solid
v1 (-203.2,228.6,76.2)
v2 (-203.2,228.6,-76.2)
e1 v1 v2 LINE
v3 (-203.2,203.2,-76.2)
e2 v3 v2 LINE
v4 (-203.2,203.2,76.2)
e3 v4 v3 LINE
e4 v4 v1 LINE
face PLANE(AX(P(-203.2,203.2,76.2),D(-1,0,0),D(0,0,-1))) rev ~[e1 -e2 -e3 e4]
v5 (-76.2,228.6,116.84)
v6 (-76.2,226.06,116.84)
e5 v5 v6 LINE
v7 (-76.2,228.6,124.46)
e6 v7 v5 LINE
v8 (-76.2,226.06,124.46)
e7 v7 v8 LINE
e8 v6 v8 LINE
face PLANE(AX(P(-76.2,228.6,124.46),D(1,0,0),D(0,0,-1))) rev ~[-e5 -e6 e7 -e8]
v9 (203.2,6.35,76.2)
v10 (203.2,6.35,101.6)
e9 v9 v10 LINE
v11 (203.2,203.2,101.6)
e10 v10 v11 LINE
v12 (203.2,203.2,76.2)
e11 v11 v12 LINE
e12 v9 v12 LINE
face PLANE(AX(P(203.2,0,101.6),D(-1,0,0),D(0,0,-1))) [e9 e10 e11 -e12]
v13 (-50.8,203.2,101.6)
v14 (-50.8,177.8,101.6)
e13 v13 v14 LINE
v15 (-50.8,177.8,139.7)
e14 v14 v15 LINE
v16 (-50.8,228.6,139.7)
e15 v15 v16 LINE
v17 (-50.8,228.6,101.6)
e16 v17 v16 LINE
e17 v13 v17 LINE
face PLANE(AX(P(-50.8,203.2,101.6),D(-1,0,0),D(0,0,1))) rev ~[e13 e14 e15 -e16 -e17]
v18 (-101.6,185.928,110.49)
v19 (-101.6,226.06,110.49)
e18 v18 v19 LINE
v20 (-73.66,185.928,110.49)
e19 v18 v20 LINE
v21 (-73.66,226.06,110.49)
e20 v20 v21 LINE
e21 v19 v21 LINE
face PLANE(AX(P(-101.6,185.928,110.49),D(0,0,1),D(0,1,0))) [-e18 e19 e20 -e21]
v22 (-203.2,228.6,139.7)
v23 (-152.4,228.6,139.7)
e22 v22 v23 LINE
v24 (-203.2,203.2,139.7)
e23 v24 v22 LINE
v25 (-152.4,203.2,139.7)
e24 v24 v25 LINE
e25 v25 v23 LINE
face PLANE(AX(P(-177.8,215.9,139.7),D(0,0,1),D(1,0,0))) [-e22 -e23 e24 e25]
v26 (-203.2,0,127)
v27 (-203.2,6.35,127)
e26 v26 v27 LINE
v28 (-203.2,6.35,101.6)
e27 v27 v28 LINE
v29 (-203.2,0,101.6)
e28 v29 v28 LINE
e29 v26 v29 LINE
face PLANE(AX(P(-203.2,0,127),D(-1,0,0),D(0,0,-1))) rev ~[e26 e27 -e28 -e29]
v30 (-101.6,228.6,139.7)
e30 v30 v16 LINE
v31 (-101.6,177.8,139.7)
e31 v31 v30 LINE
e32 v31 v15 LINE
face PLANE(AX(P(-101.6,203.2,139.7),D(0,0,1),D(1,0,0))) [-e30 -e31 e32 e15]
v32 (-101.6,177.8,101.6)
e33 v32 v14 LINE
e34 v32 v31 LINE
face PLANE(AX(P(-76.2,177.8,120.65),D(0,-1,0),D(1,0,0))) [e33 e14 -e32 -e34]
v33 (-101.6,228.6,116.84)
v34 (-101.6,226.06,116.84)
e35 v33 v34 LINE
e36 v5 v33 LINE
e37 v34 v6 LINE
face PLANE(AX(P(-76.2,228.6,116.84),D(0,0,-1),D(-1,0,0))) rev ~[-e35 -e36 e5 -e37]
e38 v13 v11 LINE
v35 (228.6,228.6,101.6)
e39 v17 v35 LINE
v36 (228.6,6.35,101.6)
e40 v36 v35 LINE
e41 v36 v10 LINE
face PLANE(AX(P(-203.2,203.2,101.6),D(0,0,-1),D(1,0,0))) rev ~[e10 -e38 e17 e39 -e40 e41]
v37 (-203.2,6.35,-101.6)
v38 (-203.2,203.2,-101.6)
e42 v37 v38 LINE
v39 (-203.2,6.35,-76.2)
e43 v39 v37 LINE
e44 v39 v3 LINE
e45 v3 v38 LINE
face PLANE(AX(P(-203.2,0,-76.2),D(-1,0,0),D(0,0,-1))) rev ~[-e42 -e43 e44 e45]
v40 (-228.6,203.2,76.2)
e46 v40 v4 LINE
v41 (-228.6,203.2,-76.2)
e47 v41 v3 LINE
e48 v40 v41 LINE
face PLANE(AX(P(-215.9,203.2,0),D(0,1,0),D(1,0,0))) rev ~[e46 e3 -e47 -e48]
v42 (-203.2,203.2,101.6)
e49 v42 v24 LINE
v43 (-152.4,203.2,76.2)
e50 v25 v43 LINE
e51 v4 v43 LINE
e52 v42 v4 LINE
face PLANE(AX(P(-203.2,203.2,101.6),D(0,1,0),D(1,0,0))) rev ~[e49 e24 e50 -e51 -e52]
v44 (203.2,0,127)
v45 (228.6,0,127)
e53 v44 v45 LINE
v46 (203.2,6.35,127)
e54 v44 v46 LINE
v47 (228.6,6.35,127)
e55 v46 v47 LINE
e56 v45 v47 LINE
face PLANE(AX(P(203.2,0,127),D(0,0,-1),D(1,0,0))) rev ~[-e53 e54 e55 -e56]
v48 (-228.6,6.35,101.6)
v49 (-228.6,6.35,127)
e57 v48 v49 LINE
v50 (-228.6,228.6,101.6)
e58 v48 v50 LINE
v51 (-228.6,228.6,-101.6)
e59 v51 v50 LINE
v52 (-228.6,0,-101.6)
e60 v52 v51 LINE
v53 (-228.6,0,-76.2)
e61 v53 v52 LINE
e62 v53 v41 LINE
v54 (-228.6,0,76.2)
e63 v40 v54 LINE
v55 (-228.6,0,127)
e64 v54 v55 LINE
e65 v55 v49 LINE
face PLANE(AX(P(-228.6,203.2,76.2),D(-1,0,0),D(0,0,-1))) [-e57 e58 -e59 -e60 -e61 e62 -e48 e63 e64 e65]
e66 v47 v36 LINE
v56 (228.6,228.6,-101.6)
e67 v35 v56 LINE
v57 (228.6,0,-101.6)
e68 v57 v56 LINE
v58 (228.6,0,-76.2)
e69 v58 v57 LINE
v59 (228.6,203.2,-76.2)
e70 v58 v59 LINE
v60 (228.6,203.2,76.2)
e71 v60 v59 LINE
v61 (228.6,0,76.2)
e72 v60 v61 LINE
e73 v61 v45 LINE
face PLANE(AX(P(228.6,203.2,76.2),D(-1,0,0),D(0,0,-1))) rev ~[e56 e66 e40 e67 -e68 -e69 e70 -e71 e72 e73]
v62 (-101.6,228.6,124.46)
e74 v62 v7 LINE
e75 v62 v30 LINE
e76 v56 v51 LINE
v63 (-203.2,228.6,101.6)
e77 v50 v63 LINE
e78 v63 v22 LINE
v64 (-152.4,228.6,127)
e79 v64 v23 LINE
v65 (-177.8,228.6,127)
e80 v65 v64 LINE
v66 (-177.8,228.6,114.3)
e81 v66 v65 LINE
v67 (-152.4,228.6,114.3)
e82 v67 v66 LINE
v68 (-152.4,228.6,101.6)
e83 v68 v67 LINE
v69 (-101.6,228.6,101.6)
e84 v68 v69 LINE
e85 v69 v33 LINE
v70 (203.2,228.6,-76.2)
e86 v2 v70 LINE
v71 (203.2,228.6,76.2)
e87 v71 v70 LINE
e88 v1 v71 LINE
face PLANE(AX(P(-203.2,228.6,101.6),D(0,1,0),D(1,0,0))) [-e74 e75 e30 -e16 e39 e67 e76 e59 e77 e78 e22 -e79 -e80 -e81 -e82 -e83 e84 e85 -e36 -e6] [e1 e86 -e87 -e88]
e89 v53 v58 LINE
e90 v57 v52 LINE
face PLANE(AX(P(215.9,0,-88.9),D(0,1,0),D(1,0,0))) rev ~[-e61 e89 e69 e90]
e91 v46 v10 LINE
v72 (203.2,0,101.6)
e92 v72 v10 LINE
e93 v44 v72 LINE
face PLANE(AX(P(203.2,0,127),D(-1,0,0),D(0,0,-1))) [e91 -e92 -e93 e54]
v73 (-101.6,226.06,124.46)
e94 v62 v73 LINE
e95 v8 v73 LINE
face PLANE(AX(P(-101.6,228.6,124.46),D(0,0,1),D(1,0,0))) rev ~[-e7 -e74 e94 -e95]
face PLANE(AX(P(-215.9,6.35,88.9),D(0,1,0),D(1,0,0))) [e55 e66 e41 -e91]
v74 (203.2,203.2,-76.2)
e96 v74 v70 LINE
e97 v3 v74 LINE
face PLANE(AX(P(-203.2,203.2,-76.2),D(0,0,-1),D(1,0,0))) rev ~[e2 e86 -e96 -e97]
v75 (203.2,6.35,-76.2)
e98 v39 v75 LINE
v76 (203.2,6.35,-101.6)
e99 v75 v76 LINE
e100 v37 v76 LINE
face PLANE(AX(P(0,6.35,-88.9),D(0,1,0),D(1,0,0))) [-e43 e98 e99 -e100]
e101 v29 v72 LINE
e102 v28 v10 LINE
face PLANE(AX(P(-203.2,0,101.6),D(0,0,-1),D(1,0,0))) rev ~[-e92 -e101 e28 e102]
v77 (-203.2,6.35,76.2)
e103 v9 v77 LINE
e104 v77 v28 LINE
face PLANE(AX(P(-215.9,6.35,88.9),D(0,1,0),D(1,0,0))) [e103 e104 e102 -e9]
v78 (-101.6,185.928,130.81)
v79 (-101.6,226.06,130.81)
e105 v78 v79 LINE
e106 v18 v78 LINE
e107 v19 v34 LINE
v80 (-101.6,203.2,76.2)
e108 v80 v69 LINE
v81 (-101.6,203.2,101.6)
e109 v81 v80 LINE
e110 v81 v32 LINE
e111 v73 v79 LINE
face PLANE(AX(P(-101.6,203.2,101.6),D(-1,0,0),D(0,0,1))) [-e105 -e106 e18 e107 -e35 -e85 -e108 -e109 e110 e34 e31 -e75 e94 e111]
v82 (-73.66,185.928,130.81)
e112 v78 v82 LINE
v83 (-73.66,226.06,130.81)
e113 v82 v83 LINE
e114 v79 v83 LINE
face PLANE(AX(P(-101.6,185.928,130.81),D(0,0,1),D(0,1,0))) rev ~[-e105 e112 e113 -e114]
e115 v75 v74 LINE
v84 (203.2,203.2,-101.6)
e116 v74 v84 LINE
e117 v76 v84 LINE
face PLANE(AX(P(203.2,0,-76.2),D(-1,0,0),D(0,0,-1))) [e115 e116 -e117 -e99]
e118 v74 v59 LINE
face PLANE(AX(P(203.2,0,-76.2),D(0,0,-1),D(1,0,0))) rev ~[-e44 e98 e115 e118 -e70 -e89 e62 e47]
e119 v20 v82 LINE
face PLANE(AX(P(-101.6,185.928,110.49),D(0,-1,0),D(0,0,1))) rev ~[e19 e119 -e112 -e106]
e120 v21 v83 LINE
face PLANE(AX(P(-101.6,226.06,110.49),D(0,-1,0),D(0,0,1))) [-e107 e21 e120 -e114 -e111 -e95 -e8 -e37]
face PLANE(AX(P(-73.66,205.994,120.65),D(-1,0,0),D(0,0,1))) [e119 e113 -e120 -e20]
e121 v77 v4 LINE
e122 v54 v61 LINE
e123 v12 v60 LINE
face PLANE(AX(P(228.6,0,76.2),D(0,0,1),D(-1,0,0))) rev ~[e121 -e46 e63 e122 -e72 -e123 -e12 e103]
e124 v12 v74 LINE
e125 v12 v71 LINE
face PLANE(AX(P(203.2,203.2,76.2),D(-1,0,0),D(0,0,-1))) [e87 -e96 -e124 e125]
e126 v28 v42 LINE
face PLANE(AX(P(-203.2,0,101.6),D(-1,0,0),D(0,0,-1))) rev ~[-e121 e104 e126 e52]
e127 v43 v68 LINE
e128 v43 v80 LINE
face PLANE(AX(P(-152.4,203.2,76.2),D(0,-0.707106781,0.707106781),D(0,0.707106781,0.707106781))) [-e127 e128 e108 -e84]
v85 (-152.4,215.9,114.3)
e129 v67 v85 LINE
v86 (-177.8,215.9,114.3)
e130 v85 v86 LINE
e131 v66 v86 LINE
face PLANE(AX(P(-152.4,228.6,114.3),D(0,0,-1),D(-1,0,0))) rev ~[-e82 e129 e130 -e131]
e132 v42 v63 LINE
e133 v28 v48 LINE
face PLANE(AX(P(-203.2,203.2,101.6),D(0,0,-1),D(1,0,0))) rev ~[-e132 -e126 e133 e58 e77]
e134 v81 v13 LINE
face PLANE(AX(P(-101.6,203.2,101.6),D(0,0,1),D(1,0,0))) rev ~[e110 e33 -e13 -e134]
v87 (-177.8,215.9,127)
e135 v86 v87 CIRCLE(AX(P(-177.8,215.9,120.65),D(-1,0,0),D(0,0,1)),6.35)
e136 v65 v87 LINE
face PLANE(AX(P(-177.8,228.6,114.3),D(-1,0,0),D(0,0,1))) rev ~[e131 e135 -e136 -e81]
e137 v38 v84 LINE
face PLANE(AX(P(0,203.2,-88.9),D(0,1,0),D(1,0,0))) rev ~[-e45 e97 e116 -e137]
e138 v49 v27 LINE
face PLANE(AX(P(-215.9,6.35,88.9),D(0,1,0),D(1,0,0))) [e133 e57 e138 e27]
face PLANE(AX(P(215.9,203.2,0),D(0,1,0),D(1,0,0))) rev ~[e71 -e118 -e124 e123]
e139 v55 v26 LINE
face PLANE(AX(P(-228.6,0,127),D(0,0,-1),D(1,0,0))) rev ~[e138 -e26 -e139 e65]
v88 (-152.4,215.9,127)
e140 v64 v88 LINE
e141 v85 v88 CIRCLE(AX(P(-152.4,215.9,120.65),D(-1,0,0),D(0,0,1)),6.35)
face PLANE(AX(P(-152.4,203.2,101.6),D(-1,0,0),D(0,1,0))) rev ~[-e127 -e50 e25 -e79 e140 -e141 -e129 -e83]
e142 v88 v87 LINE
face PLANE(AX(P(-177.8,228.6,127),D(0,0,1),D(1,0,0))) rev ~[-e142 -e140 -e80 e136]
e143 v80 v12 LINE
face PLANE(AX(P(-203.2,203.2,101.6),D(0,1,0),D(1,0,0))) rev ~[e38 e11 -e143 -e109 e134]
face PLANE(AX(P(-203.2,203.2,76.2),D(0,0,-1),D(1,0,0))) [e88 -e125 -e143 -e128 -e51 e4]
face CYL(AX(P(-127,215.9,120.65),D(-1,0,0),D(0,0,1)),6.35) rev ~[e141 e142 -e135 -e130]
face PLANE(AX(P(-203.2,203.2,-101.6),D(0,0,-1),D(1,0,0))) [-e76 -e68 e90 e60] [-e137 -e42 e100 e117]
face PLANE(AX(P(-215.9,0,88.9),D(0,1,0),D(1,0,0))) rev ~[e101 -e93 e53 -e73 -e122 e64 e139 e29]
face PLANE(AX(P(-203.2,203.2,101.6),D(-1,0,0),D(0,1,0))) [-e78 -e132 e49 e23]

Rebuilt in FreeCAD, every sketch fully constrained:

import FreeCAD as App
import Part
import Sketcher
Q = App.Units.Quantity

doc = App.newDocument("Part")
params = doc.addObject("Spreadsheet::Sheet", "Params")
for row, (alias, value) in enumerate([
    ("sketch1_width", "1 in"),
    ("sketch1_width2", "16 in"),
    ("sketch1_height", "2 in"),
    ("pad1_length", "0.25 in"),
    ("sketch2_width", "1 in"),
    ("pad2_length", "9 in"),
    ("sketch3_width", "16 in"),
    ("sketch3_width2", "1 in"),
    ("sketch3_height", "6 in"),
    ("pad3_length", "1 in"),
    ("sketch4_width", "2 in"),
    ("sketch4_height", "1 in"),
    ("pad4_length", "1.5 in"),
    ("sketch5_diameter", "0.5 in"),
    ("hole_diameter", "0.5 in"),
    ("hole_depth", "1 in"),
    ("sketch6_width", "2 in"),
    ("sketch6_height", "1.5 in"),
    ("pad5_length", "1 in"),
    ("sketch7_height", "0.8 in"),
    ("sketch7_width", "1.58 in"),
    ("pocket1_length", "1.1 in"),
    ("sketch8_width", "1 in"),
    ("sketch8_height", "0.5 in"),
    ("pocket2_length", "0.5 in"),
    ("sketch9_width", "1 in"),
    ("sketch9_height", "0.3 in"),
    ("pocket3_length", "0.5 in"),
    ("sketch10_width", "1 in"),
    ("pocket4_length", "2 in"),
], start=1):
    params.set(f"A{row}", alias)
    params.set(f"B{row}", "=" + value)
    params.setAlias(f"B{row}", alias)

body = doc.addObject("PartDesign::Body", "Body")
body.AllowCompound = True

# Sketch on XZ plane
sketch1 = doc.addObject("Sketcher::SketchObject", "Sketch")
body.addObject(sketch1)
sketch1.AttachmentSupport = (doc.XZ_Plane, [""])
sketch1.MapMode = "FlatFace"
sketch1.addGeometry(Part.LineSegment(App.Vector(-229, 76, 0), App.Vector(-229, 127, 0)), False)
sketch1.addGeometry(Part.LineSegment(App.Vector(-229, 127, 0), App.Vector(-203, 127, 0)), False)
sketch1.addGeometry(Part.LineSegment(App.Vector(-203, 127, 0), App.Vector(-203, 102, 0)), False)
sketch1.addGeometry(Part.LineSegment(App.Vector(-203, 102, 0), App.Vector(203, 102, 0)), False)
sketch1.addGeometry(Part.LineSegment(App.Vector(203, 102, 0), App.Vector(203, 127, 0)), False)
sketch1.addGeometry(Part.LineSegment(App.Vector(203, 127, 0), App.Vector(229, 127, 0)), False)
sketch1.addGeometry(Part.LineSegment(App.Vector(229, 127, 0), App.Vector(229, 76, 0)), False)
sketch1.addGeometry(Part.LineSegment(App.Vector(229, 76, 0), App.Vector(-229, 76, 0)), False)
sketch1.addGeometry(Part.LineSegment(App.Vector(-203, -102, 0), App.Vector(-203, -76, 0)), False)
sketch1.addGeometry(Part.LineSegment(App.Vector(-203, -76, 0), App.Vector(203, -76, 0)), False)
sketch1.addGeometry(Part.LineSegment(App.Vector(203, -76, 0), App.Vector(203, -102, 0)), False)
sketch1.addGeometry(Part.LineSegment(App.Vector(203, -102, 0), App.Vector(-203, -102, 0)), False)
sketch1.addConstraint(Sketcher.Constraint("Coincident", 0, 2, 1, 1))
sketch1.addConstraint(Sketcher.Constraint("Coincident", 1, 2, 2, 1))
sketch1.addConstraint(Sketcher.Constraint("Coincident", 2, 2, 3, 1))
sketch1.addConstraint(Sketcher.Constraint("Coincident", 3, 2, 4, 1))
sketch1.addConstraint(Sketcher.Constraint("Coincident", 4, 2, 5, 1))
sketch1.addConstraint(Sketcher.Constraint("Coincident", 5, 2, 6, 1))
sketch1.addConstraint(Sketcher.Constraint("Coincident", 6, 2, 7, 1))
sketch1.addConstraint(Sketcher.Constraint("Coincident", 7, 2, 0, 1))
sketch1.addConstraint(Sketcher.Constraint("Coincident", 8, 2, 9, 1))
sketch1.addConstraint(Sketcher.Constraint("Coincident", 9, 2, 10, 1))
sketch1.addConstraint(Sketcher.Constraint("Coincident", 10, 2, 11, 1))
sketch1.addConstraint(Sketcher.Constraint("Coincident", 11, 2, 8, 1))
sketch1.addConstraint(Sketcher.Constraint("Vertical", 0))
sketch1.addConstraint(Sketcher.Constraint("Horizontal", 1))
sketch1.addConstraint(Sketcher.Constraint("Vertical", 2))
sketch1.addConstraint(Sketcher.Constraint("Horizontal", 3))
sketch1.addConstraint(Sketcher.Constraint("Vertical", 4))
sketch1.addConstraint(Sketcher.Constraint("Horizontal", 5))
sketch1.addConstraint(Sketcher.Constraint("Vertical", 6))
sketch1.addConstraint(Sketcher.Constraint("Horizontal", 7))
sketch1.addConstraint(Sketcher.Constraint("Vertical", 8))
sketch1.addConstraint(Sketcher.Constraint("Horizontal", 9))
sketch1.addConstraint(Sketcher.Constraint("Vertical", 10))
sketch1.addConstraint(Sketcher.Constraint("Horizontal", 11))
sketch1.addConstraint(Sketcher.Constraint("Symmetric", 2, 2, 10, 2, -1, 1))
sketch1.addConstraint(Sketcher.Constraint("Symmetric", 1, 2, 4, 2, -2))
sketch1.addConstraint(Sketcher.Constraint("Vertical", 2, 2, 8, 2))
sketch1.addConstraint(Sketcher.Constraint("Equal", 1, 5))
sketch1.addConstraint(Sketcher.Constraint("Equal", 5, 2))
sketch1.addConstraint(Sketcher.Constraint("Equal", 4, 8))
sketch1.addConstraint(Sketcher.Constraint("DistanceX", 1, 1, 1, 2, Q("1 in")))
sketch1.addConstraint(Sketcher.Constraint("DistanceX", 3, 1, 3, 2, Q("16 in")))
sketch1.addConstraint(Sketcher.Constraint("DistanceY", 0, 1, 0, 2, Q("2 in")))
sketch1.addConstraint(Sketcher.Constraint("DistanceY", -1, 1, 0, 2, Q("5 in")))
sketch1.setExpression("Constraints[30]", "Params.sketch1_width")
sketch1.setExpression("Constraints[31]", "Params.sketch1_width2")
sketch1.setExpression("Constraints[32]", "Params.sketch1_height")
pad1 = doc.addObject("PartDesign::Pad", "Pad")
body.addObject(pad1)
pad1.Profile = sketch1
pad1.setExpression("Length", "Params.pad1_length")
pad1.Reversed = True

# Sketch on XZ plane
sketch2 = doc.addObject("Sketcher::SketchObject", "Sketch001")
body.addObject(sketch2)
sketch2.AttachmentSupport = (doc.XZ_Plane, [""])
sketch2.MapMode = "FlatFace"
sketch2.addGeometry(Part.LineSegment(App.Vector(-229, 76, 0), App.Vector(-229, 102, 0)), False)
sketch2.addGeometry(Part.LineSegment(App.Vector(-229, 102, 0), App.Vector(-203, 102, 0)), False)
sketch2.addGeometry(Part.LineSegment(App.Vector(-203, 102, 0), App.Vector(-203, 76, 0)), False)
sketch2.addGeometry(Part.LineSegment(App.Vector(-203, 76, 0), App.Vector(-229, 76, 0)), False)
sketch2.addGeometry(Part.LineSegment(App.Vector(203, 76, 0), App.Vector(203, 102, 0)), False)
sketch2.addGeometry(Part.LineSegment(App.Vector(203, 102, 0), App.Vector(229, 102, 0)), False)
sketch2.addGeometry(Part.LineSegment(App.Vector(229, 102, 0), App.Vector(229, 76, 0)), False)
sketch2.addGeometry(Part.LineSegment(App.Vector(229, 76, 0), App.Vector(203, 76, 0)), False)
sketch2.addGeometry(Part.LineSegment(App.Vector(203, -102, 0), App.Vector(203, -76, 0)), False)
sketch2.addGeometry(Part.LineSegment(App.Vector(203, -76, 0), App.Vector(229, -76, 0)), False)
sketch2.addGeometry(Part.LineSegment(App.Vector(229, -76, 0), App.Vector(229, -102, 0)), False)
sketch2.addGeometry(Part.LineSegment(App.Vector(229, -102, 0), App.Vector(203, -102, 0)), False)
sketch2.addGeometry(Part.LineSegment(App.Vector(-229, -102, 0), App.Vector(-229, -76, 0)), False)
sketch2.addGeometry(Part.LineSegment(App.Vector(-229, -76, 0), App.Vector(-203, -76, 0)), False)
sketch2.addGeometry(Part.LineSegment(App.Vector(-203, -76, 0), App.Vector(-203, -102, 0)), False)
sketch2.addGeometry(Part.LineSegment(App.Vector(-203, -102, 0), App.Vector(-229, -102, 0)), False)
sketch2.addConstraint(Sketcher.Constraint("Coincident", 0, 2, 1, 1))
sketch2.addConstraint(Sketcher.Constraint("Coincident", 1, 2, 2, 1))
sketch2.addConstraint(Sketcher.Constraint("Coincident", 2, 2, 3, 1))
sketch2.addConstraint(Sketcher.Constraint("Coincident", 3, 2, 0, 1))
sketch2.addConstraint(Sketcher.Constraint("Coincident", 4, 2, 5, 1))
sketch2.addConstraint(Sketcher.Constraint("Coincident", 5, 2, 6, 1))
sketch2.addConstraint(Sketcher.Constraint("Coincident", 6, 2, 7, 1))
sketch2.addConstraint(Sketcher.Constraint("Coincident", 7, 2, 4, 1))
sketch2.addConstraint(Sketcher.Constraint("Coincident", 8, 2, 9, 1))
sketch2.addConstraint(Sketcher.Constraint("Coincident", 9, 2, 10, 1))
sketch2.addConstraint(Sketcher.Constraint("Coincident", 10, 2, 11, 1))
sketch2.addConstraint(Sketcher.Constraint("Coincident", 11, 2, 8, 1))
sketch2.addConstraint(Sketcher.Constraint("Coincident", 12, 2, 13, 1))
sketch2.addConstraint(Sketcher.Constraint("Coincident", 13, 2, 14, 1))
sketch2.addConstraint(Sketcher.Constraint("Coincident", 14, 2, 15, 1))
sketch2.addConstraint(Sketcher.Constraint("Coincident", 15, 2, 12, 1))
sketch2.addConstraint(Sketcher.Constraint("Vertical", 0))
sketch2.addConstraint(Sketcher.Constraint("Horizontal", 1))
sketch2.addConstraint(Sketcher.Constraint("Vertical", 2))
sketch2.addConstraint(Sketcher.Constraint("Horizontal", 3))
sketch2.addConstraint(Sketcher.Constraint("Vertical", 4))
sketch2.addConstraint(Sketcher.Constraint("Horizontal", 5))
sketch2.addConstraint(Sketcher.Constraint("Vertical", 6))
sketch2.addConstraint(Sketcher.Constraint("Horizontal", 7))
sketch2.addConstraint(Sketcher.Constraint("Vertical", 8))
sketch2.addConstraint(Sketcher.Constraint("Horizontal", 9))
sketch2.addConstraint(Sketcher.Constraint("Vertical", 10))
sketch2.addConstraint(Sketcher.Constraint("Horizontal", 11))
sketch2.addConstraint(Sketcher.Constraint("Vertical", 12))
sketch2.addConstraint(Sketcher.Constraint("Horizontal", 13))
sketch2.addConstraint(Sketcher.Constraint("Vertical", 14))
sketch2.addConstraint(Sketcher.Constraint("Horizontal", 15))
sketch2.addConstraint(Sketcher.Constraint("Symmetric", 2, 2, 8, 2, -1, 1))
sketch2.addConstraint(Sketcher.Constraint("Symmetric", 0, 2, 10, 2, -1, 1))
sketch2.addConstraint(Sketcher.Constraint("Symmetric", 6, 2, 12, 2, -1, 1))
sketch2.addConstraint(Sketcher.Constraint("Symmetric", 4, 2, 14, 2, -1, 1))
sketch2.addConstraint(Sketcher.Constraint("Symmetric", 1, 2, 4, 2, -2))
sketch2.addConstraint(Sketcher.Constraint("Symmetric", 3, 2, 6, 2, -2))
sketch2.addConstraint(Sketcher.Constraint("Equal", 15, 0))
sketch2.addConstraint(Sketcher.Constraint("DistanceX", 1, 1, 1, 2, Q("1 in")))
sketch2.addConstraint(Sketcher.Constraint("DistanceX", 0, 2, -1, 1, Q("9 in")))
sketch2.addConstraint(Sketcher.Constraint("DistanceY", -1, 1, 0, 2, Q("4 in")))
sketch2.setExpression("Constraints[39]", "Params.sketch2_width")
pad2 = doc.addObject("PartDesign::Pad", "Pad001")
body.addObject(pad2)
pad2.Profile = sketch2
pad2.setExpression("Length", "Params.pad2_length")
pad2.Reversed = True

# Sketch on XZ plane
sketch3 = doc.addObject("Sketcher::SketchObject", "Sketch002")
body.addObject(sketch3)
sketch3.AttachmentSupport = (doc.XZ_Plane, [""])
sketch3.MapMode = "FlatFace"
sketch3.AttachmentOffset = App.Placement(App.Vector(0, 0, -8 * 25.4), App.Rotation())
sketch3.addGeometry(Part.LineSegment(App.Vector(-203, -102, 0), App.Vector(-203, -76, 0)), False)
sketch3.addGeometry(Part.LineSegment(App.Vector(-203, -76, 0), App.Vector(203, -76, 0)), False)
sketch3.addGeometry(Part.LineSegment(App.Vector(203, -76, 0), App.Vector(203, -102, 0)), False)
sketch3.addGeometry(Part.LineSegment(App.Vector(203, -102, 0), App.Vector(-203, -102, 0)), False)
sketch3.addGeometry(Part.LineSegment(App.Vector(-203, 76, 0), App.Vector(-203, 102, 0)), False)
sketch3.addGeometry(Part.LineSegment(App.Vector(-203, 102, 0), App.Vector(203, 102, 0)), False)
sketch3.addGeometry(Part.LineSegment(App.Vector(203, 102, 0), App.Vector(203, 76, 0)), False)
sketch3.addGeometry(Part.LineSegment(App.Vector(203, 76, 0), App.Vector(-203, 76, 0)), False)
sketch3.addGeometry(Part.LineSegment(App.Vector(-229, -76, 0), App.Vector(-229, 76, 0)), False)
sketch3.addGeometry(Part.LineSegment(App.Vector(-229, 76, 0), App.Vector(-203, 76, 0)), False)
sketch3.addGeometry(Part.LineSegment(App.Vector(-203, 76, 0), App.Vector(-203, -76, 0)), False)
sketch3.addGeometry(Part.LineSegment(App.Vector(-203, -76, 0), App.Vector(-229, -76, 0)), False)
sketch3.addGeometry(Part.LineSegment(App.Vector(203, -76, 0), App.Vector(203, 76, 0)), False)
sketch3.addGeometry(Part.LineSegment(App.Vector(203, 76, 0), App.Vector(229, 76, 0)), False)
sketch3.addGeometry(Part.LineSegment(App.Vector(229, 76, 0), App.Vector(229, -76, 0)), False)
sketch3.addGeometry(Part.LineSegment(App.Vector(229, -76, 0), App.Vector(203, -76, 0)), False)
sketch3.addConstraint(Sketcher.Constraint("Coincident", 0, 2, 1, 1))
sketch3.addConstraint(Sketcher.Constraint("Coincident", 1, 2, 2, 1))
sketch3.addConstraint(Sketcher.Constraint("Coincident", 2, 2, 3, 1))
sketch3.addConstraint(Sketcher.Constraint("Coincident", 3, 2, 0, 1))
sketch3.addConstraint(Sketcher.Constraint("Coincident", 4, 2, 5, 1))
sketch3.addConstraint(Sketcher.Constraint("Coincident", 5, 2, 6, 1))
sketch3.addConstraint(Sketcher.Constraint("Coincident", 6, 2, 7, 1))
sketch3.addConstraint(Sketcher.Constraint("Coincident", 7, 2, 4, 1))
sketch3.addConstraint(Sketcher.Constraint("Coincident", 8, 2, 9, 1))
sketch3.addConstraint(Sketcher.Constraint("Coincident", 9, 2, 10, 1))
sketch3.addConstraint(Sketcher.Constraint("Coincident", 10, 2, 11, 1))
sketch3.addConstraint(Sketcher.Constraint("Coincident", 11, 2, 8, 1))
sketch3.addConstraint(Sketcher.Constraint("Coincident", 12, 2, 13, 1))
sketch3.addConstraint(Sketcher.Constraint("Coincident", 13, 2, 14, 1))
sketch3.addConstraint(Sketcher.Constraint("Coincident", 14, 2, 15, 1))
sketch3.addConstraint(Sketcher.Constraint("Coincident", 15, 2, 12, 1))
sketch3.addConstraint(Sketcher.Constraint("Vertical", 0))
sketch3.addConstraint(Sketcher.Constraint("Horizontal", 1))
sketch3.addConstraint(Sketcher.Constraint("Vertical", 2))
sketch3.addConstraint(Sketcher.Constraint("Horizontal", 3))
sketch3.addConstraint(Sketcher.Constraint("Vertical", 4))
sketch3.addConstraint(Sketcher.Constraint("Horizontal", 5))
sketch3.addConstraint(Sketcher.Constraint("Vertical", 6))
sketch3.addConstraint(Sketcher.Constraint("Horizontal", 7))
sketch3.addConstraint(Sketcher.Constraint("Vertical", 8))
sketch3.addConstraint(Sketcher.Constraint("Horizontal", 9))
sketch3.addConstraint(Sketcher.Constraint("Vertical", 10))
sketch3.addConstraint(Sketcher.Constraint("Horizontal", 11))
sketch3.addConstraint(Sketcher.Constraint("Vertical", 12))
sketch3.addConstraint(Sketcher.Constraint("Horizontal", 13))
sketch3.addConstraint(Sketcher.Constraint("Vertical", 14))
sketch3.addConstraint(Sketcher.Constraint("Horizontal", 15))
sketch3.addConstraint(Sketcher.Constraint("Coincident", 9, 2, 7, 2))
sketch3.addConstraint(Sketcher.Constraint("Coincident", 10, 2, 0, 2))
sketch3.addConstraint(Sketcher.Constraint("Coincident", 12, 2, 6, 2))
sketch3.addConstraint(Sketcher.Constraint("Coincident", 15, 2, 1, 2))
sketch3.addConstraint(Sketcher.Constraint("Symmetric", 2, 2, 4, 2, -1, 1))
sketch3.addConstraint(Sketcher.Constraint("Symmetric", 11, 2, 13, 2, -1, 1))
sketch3.addConstraint(Sketcher.Constraint("Equal", 15, 0))
sketch3.addConstraint(Sketcher.Constraint("DistanceX", 1, 1, 1, 2, Q("16 in")))
sketch3.addConstraint(Sketcher.Constraint("DistanceX", 9, 1, 9, 2, Q("1 in")))
sketch3.addConstraint(Sketcher.Constraint("DistanceY", 8, 1, 8, 2, Q("6 in")))
sketch3.setExpression("Constraints[39]", "Params.sketch3_width")
sketch3.setExpression("Constraints[40]", "Params.sketch3_width2")
sketch3.setExpression("Constraints[41]", "Params.sketch3_height")
pad3 = doc.addObject("PartDesign::Pad", "Pad002")
body.addObject(pad3)
pad3.Profile = sketch3
pad3.setExpression("Length", "Params.pad3_length")
pad3.Reversed = True

# Sketch on XY plane
sketch4 = doc.addObject("Sketcher::SketchObject", "Sketch003")
body.addObject(sketch4)
sketch4.AttachmentSupport = (doc.XY_Plane, [""])
sketch4.MapMode = "FlatFace"
sketch4.AttachmentOffset = App.Placement(App.Vector(0, 0, 4 * 25.4), App.Rotation())
sketch4.addGeometry(Part.LineSegment(App.Vector(-203, 229, 0), App.Vector(-203, 203, 0)), False)
sketch4.addGeometry(Part.LineSegment(App.Vector(-203, 203, 0), App.Vector(-152, 203, 0)), False)
sketch4.addGeometry(Part.LineSegment(App.Vector(-152, 203, 0), App.Vector(-152, 229, 0)), False)
sketch4.addGeometry(Part.LineSegment(App.Vector(-152, 229, 0), App.Vector(-203, 229, 0)), False)
sketch4.addGeometry(Part.LineSegment(App.Vector(-102, 229, 0), App.Vector(-102, 203, 0)), False)
sketch4.addGeometry(Part.LineSegment(App.Vector(-102, 203, 0), App.Vector(-51, 203, 0)), False)
sketch4.addGeometry(Part.LineSegment(App.Vector(-51, 203, 0), App.Vector(-51, 229, 0)), False)
sketch4.addGeometry(Part.LineSegment(App.Vector(-51, 229, 0), App.Vector(-102, 229, 0)), False)
sketch4.addConstraint(Sketcher.Constraint("Coincident", 0, 2, 1, 1))
sketch4.addConstraint(Sketcher.Constraint("Coincident", 1, 2, 2, 1))
sketch4.addConstraint(Sketcher.Constraint("Coincident", 2, 2, 3, 1))
sketch4.addConstraint(Sketcher.Constraint("Coincident", 3, 2, 0, 1))
sketch4.addConstraint(Sketcher.Constraint("Coincident", 4, 2, 5, 1))
sketch4.addConstraint(Sketcher.Constraint("Coincident", 5, 2, 6, 1))
sketch4.addConstraint(Sketcher.Constraint("Coincident", 6, 2, 7, 1))
sketch4.addConstraint(Sketcher.Constraint("Coincident", 7, 2, 4, 1))
sketch4.addConstraint(Sketcher.Constraint("Vertical", 0))
sketch4.addConstraint(Sketcher.Constraint("Horizontal", 1))
sketch4.addConstraint(Sketcher.Constraint("Vertical", 2))
sketch4.addConstraint(Sketcher.Constraint("Horizontal", 3))
sketch4.addConstraint(Sketcher.Constraint("Vertical", 4))
sketch4.addConstraint(Sketcher.Constraint("Horizontal", 5))
sketch4.addConstraint(Sketcher.Constraint("Vertical", 6))
sketch4.addConstraint(Sketcher.Constraint("Horizontal", 7))
sketch4.addConstraint(Sketcher.Constraint("Horizontal", 1, 2, 4, 2))
sketch4.addConstraint(Sketcher.Constraint("Horizontal", 3, 2, 6, 2))
sketch4.addConstraint(Sketcher.Constraint("Equal", 3, 5))
sketch4.addConstraint(Sketcher.Constraint("DistanceX", 1, 1, 1, 2, Q("2 in")))
sketch4.addConstraint(Sketcher.Constraint("DistanceY", 0, 2, 0, 1, Q("1 in")))
sketch4.addConstraint(Sketcher.Constraint("DistanceX", 0, 2, -1, 1, Q("8 in")))
sketch4.addConstraint(Sketcher.Constraint("DistanceY", -1, 1, 0, 2, Q("8 in")))
sketch4.addConstraint(Sketcher.Constraint("DistanceX", 4, 2, -1, 1, Q("4 in")))
sketch4.setExpression("Constraints[19]", "Params.sketch4_width")
sketch4.setExpression("Constraints[20]", "Params.sketch4_height")
pad4 = doc.addObject("PartDesign::Pad", "Pad003")
body.addObject(pad4)
pad4.Profile = sketch4
pad4.setExpression("Length", "Params.pad4_length")

# Sketch on YZ plane
sketch5 = doc.addObject("Sketcher::SketchObject", "Sketch004")
body.addObject(sketch5)
sketch5.AttachmentSupport = (doc.YZ_Plane, [""])
sketch5.MapMode = "FlatFace"
sketch5.AttachmentOffset = App.Placement(App.Vector(0, 0, -6 * 25.4), App.Rotation())
sketch5.addGeometry(Part.Circle(App.Vector(216, 121, 0), App.Vector(0, 0, 1), 6), False)
sketch5.addConstraint(Sketcher.Constraint("Diameter", 0, Q("0.5 in")))
sketch5.addConstraint(Sketcher.Constraint("DistanceX", -1, 1, 0, 3, Q("8.5 in")))
sketch5.addConstraint(Sketcher.Constraint("DistanceY", -1, 1, 0, 3, Q("4.75 in")))
sketch5.setExpression("Constraints[0]", "Params.sketch5_diameter")
doc.recompute()
hole = doc.addObject("PartDesign::Hole", "Hole")
body.addObject(hole)
hole.Profile = sketch5
hole.ThreadType = "None"
hole.setExpression("Diameter", "Params.hole_diameter")
hole.DepthType = "Dimension"
hole.setExpression("Depth", "Params.hole_depth")
hole.DrillPoint = "Flat"

# Sketch on XZ plane
sketch6 = doc.addObject("Sketcher::SketchObject", "Sketch005")
body.addObject(sketch6)
sketch6.AttachmentSupport = (doc.XZ_Plane, [""])
sketch6.MapMode = "FlatFace"
sketch6.AttachmentOffset = App.Placement(App.Vector(0, 0, -8 * 25.4), App.Rotation())
sketch6.addGeometry(Part.LineSegment(App.Vector(-102, 140, 0), App.Vector(-102, 102, 0)), False)
sketch6.addGeometry(Part.LineSegment(App.Vector(-102, 102, 0), App.Vector(-51, 102, 0)), False)
sketch6.addGeometry(Part.LineSegment(App.Vector(-51, 102, 0), App.Vector(-51, 140, 0)), False)
sketch6.addGeometry(Part.LineSegment(App.Vector(-51, 140, 0), App.Vector(-102, 140, 0)), False)
sketch6.addConstraint(Sketcher.Constraint("Coincident", 0, 2, 1, 1))
sketch6.addConstraint(Sketcher.Constraint("Coincident", 1, 2, 2, 1))
sketch6.addConstraint(Sketcher.Constraint("Coincident", 2, 2, 3, 1))
sketch6.addConstraint(Sketcher.Constraint("Coincident", 3, 2, 0, 1))
sketch6.addConstraint(Sketcher.Constraint("Vertical", 0))
sketch6.addConstraint(Sketcher.Constraint("Horizontal", 1))
sketch6.addConstraint(Sketcher.Constraint("Vertical", 2))
sketch6.addConstraint(Sketcher.Constraint("Horizontal", 3))
sketch6.addConstraint(Sketcher.Constraint("DistanceX", 1, 1, 1, 2, Q("2 in")))
sketch6.addConstraint(Sketcher.Constraint("DistanceY", 0, 2, 0, 1, Q("1.5 in")))
sketch6.addConstraint(Sketcher.Constraint("DistanceX", 0, 2, -1, 1, Q("4 in")))
sketch6.addConstraint(Sketcher.Constraint("DistanceY", -1, 1, 0, 2, Q("4 in")))
sketch6.setExpression("Constraints[8]", "Params.sketch6_width")
sketch6.setExpression("Constraints[9]", "Params.sketch6_height")
pad5 = doc.addObject("PartDesign::Pad", "Pad004")
body.addObject(pad5)
pad5.Profile = sketch6
pad5.setExpression("Length", "Params.pad5_length")

# Sketch on YZ plane
sketch7 = doc.addObject("Sketcher::SketchObject", "Sketch006")
body.addObject(sketch7)
sketch7.AttachmentSupport = (doc.YZ_Plane, [""])
sketch7.MapMode = "FlatFace"
sketch7.AttachmentOffset = App.Placement(App.Vector(0, 0, -4 * 25.4), App.Rotation())
sketch7.addGeometry(Part.LineSegment(App.Vector(226, 110, 0), App.Vector(186, 110, 0)), False)
sketch7.addGeometry(Part.LineSegment(App.Vector(186, 110, 0), App.Vector(186, 131, 0)), False)
sketch7.addGeometry(Part.LineSegment(App.Vector(186, 131, 0), App.Vector(226, 131, 0)), False)
sketch7.addGeometry(Part.LineSegment(App.Vector(226, 131, 0), App.Vector(226, 110, 0)), False)
sketch7.addConstraint(Sketcher.Constraint("Coincident", 0, 2, 1, 1))
sketch7.addConstraint(Sketcher.Constraint("Coincident", 1, 2, 2, 1))
sketch7.addConstraint(Sketcher.Constraint("Coincident", 2, 2, 3, 1))
sketch7.addConstraint(Sketcher.Constraint("Coincident", 3, 2, 0, 1))
sketch7.addConstraint(Sketcher.Constraint("Horizontal", 0))
sketch7.addConstraint(Sketcher.Constraint("Vertical", 1))
sketch7.addConstraint(Sketcher.Constraint("Horizontal", 2))
sketch7.addConstraint(Sketcher.Constraint("Vertical", 3))
sketch7.addConstraint(Sketcher.Constraint("DistanceY", 1, 1, 1, 2, Q("0.8 in")))
sketch7.addConstraint(Sketcher.Constraint("DistanceX", 0, 2, 0, 1, Q("1.58 in")))
sketch7.addConstraint(Sketcher.Constraint("DistanceX", -1, 1, 2, 2, Q("8.9 in")))
sketch7.addConstraint(Sketcher.Constraint("DistanceY", -1, 1, 0, 2, Q("4.35 in")))
sketch7.setExpression("Constraints[8]", "Params.sketch7_height")
sketch7.setExpression("Constraints[9]", "Params.sketch7_width")
pocket1 = doc.addObject("PartDesign::Pocket", "Pocket")
body.addObject(pocket1)
pocket1.Profile = sketch7
pocket1.setExpression("Length", "Params.pocket1_length")
pocket1.Reversed = True

# Sketch on XZ plane
sketch8 = doc.addObject("Sketcher::SketchObject", "Sketch007")
body.addObject(sketch8)
sketch8.AttachmentSupport = (doc.XZ_Plane, [""])
sketch8.MapMode = "FlatFace"
sketch8.AttachmentOffset = App.Placement(App.Vector(0, 0, -9 * 25.4), App.Rotation())
sketch8.addGeometry(Part.LineSegment(App.Vector(-152, 127, 0), App.Vector(-152, 114, 0)), False)
sketch8.addGeometry(Part.LineSegment(App.Vector(-152, 114, 0), App.Vector(-178, 114, 0)), False)
sketch8.addGeometry(Part.LineSegment(App.Vector(-178, 114, 0), App.Vector(-178, 127, 0)), False)
sketch8.addGeometry(Part.LineSegment(App.Vector(-178, 127, 0), App.Vector(-152, 127, 0)), False)
sketch8.addConstraint(Sketcher.Constraint("Coincident", 0, 2, 1, 1))
sketch8.addConstraint(Sketcher.Constraint("Coincident", 1, 2, 2, 1))
sketch8.addConstraint(Sketcher.Constraint("Coincident", 2, 2, 3, 1))
sketch8.addConstraint(Sketcher.Constraint("Coincident", 3, 2, 0, 1))
sketch8.addConstraint(Sketcher.Constraint("Vertical", 0))
sketch8.addConstraint(Sketcher.Constraint("Horizontal", 1))
sketch8.addConstraint(Sketcher.Constraint("Vertical", 2))
sketch8.addConstraint(Sketcher.Constraint("Horizontal", 3))
sketch8.addConstraint(Sketcher.Constraint("DistanceX", 1, 2, 1, 1, Q("1 in")))
sketch8.addConstraint(Sketcher.Constraint("DistanceY", 0, 2, 0, 1, Q("0.5 in")))
sketch8.addConstraint(Sketcher.Constraint("DistanceX", 0, 2, -1, 1, Q("6 in")))
sketch8.addConstraint(Sketcher.Constraint("DistanceY", -1, 1, 2, 2, Q("5 in")))
sketch8.setExpression("Constraints[8]", "Params.sketch8_width")
sketch8.setExpression("Constraints[9]", "Params.sketch8_height")
pocket2 = doc.addObject("PartDesign::Pocket", "Pocket001")
body.addObject(pocket2)
pocket2.Profile = sketch8
pocket2.setExpression("Length", "Params.pocket2_length")
pocket2.Reversed = True

# Sketch on XZ plane
sketch9 = doc.addObject("Sketcher::SketchObject", "Sketch008")
body.addObject(sketch9)
sketch9.AttachmentSupport = (doc.XZ_Plane, [""])
sketch9.MapMode = "FlatFace"
sketch9.AttachmentOffset = App.Placement(App.Vector(0, 0, -9 * 25.4), App.Rotation())
sketch9.addGeometry(Part.LineSegment(App.Vector(-102, 124, 0), App.Vector(-76, 124, 0)), False)
sketch9.addGeometry(Part.LineSegment(App.Vector(-76, 124, 0), App.Vector(-76, 117, 0)), False)
sketch9.addGeometry(Part.LineSegment(App.Vector(-76, 117, 0), App.Vector(-102, 117, 0)), False)
sketch9.addGeometry(Part.LineSegment(App.Vector(-102, 117, 0), App.Vector(-102, 124, 0)), False)
sketch9.addConstraint(Sketcher.Constraint("Coincident", 0, 2, 1, 1))
sketch9.addConstraint(Sketcher.Constraint("Coincident", 1, 2, 2, 1))
sketch9.addConstraint(Sketcher.Constraint("Coincident", 2, 2, 3, 1))
sketch9.addConstraint(Sketcher.Constraint("Coincident", 3, 2, 0, 1))
sketch9.addConstraint(Sketcher.Constraint("Horizontal", 0))
sketch9.addConstraint(Sketcher.Constraint("Vertical", 1))
sketch9.addConstraint(Sketcher.Constraint("Horizontal", 2))
sketch9.addConstraint(Sketcher.Constraint("Vertical", 3))
sketch9.addConstraint(Sketcher.Constraint("DistanceX", 0, 1, 0, 2, Q("1 in")))
sketch9.addConstraint(Sketcher.Constraint("DistanceY", 1, 2, 1, 1, Q("0.3 in")))
sketch9.addConstraint(Sketcher.Constraint("DistanceX", 0, 2, -1, 1, Q("3 in")))
sketch9.addConstraint(Sketcher.Constraint("DistanceY", -1, 1, 0, 2, Q("4.9 in")))
sketch9.setExpression("Constraints[8]", "Params.sketch9_width")
sketch9.setExpression("Constraints[9]", "Params.sketch9_height")
pocket3 = doc.addObject("PartDesign::Pocket", "Pocket002")
body.addObject(pocket3)
pocket3.Profile = sketch9
pocket3.setExpression("Length", "Params.pocket3_length")
pocket3.Reversed = True

# Sketch on YZ plane
sketch10 = doc.addObject("Sketcher::SketchObject", "Sketch009")
body.addObject(sketch10)
sketch10.AttachmentSupport = (doc.YZ_Plane, [""])
sketch10.MapMode = "FlatFace"
sketch10.AttachmentOffset = App.Placement(App.Vector(0, 0, -6 * 25.4), App.Rotation())
sketch10.addGeometry(Part.LineSegment(App.Vector(229, 102, 0), App.Vector(203, 76, 0)), False)
sketch10.addGeometry(Part.LineSegment(App.Vector(203, 76, 0), App.Vector(203, 102, 0)), False)
sketch10.addGeometry(Part.LineSegment(App.Vector(203, 102, 0), App.Vector(229, 102, 0)), False)
sketch10.addConstraint(Sketcher.Constraint("Coincident", 0, 2, 1, 1))
sketch10.addConstraint(Sketcher.Constraint("Coincident", 1, 2, 2, 1))
sketch10.addConstraint(Sketcher.Constraint("Coincident", 2, 2, 0, 1))
sketch10.addConstraint(Sketcher.Constraint("Vertical", 1))
sketch10.addConstraint(Sketcher.Constraint("Horizontal", 2))
sketch10.addConstraint(Sketcher.Constraint("Equal", 2, 1))
sketch10.addConstraint(Sketcher.Constraint("DistanceX", 2, 1, 2, 2, Q("1 in")))
sketch10.addConstraint(Sketcher.Constraint("DistanceX", -1, 1, 0, 2, Q("8 in")))
sketch10.addConstraint(Sketcher.Constraint("DistanceY", -1, 1, 0, 2, Q("3 in")))
sketch10.setExpression("Constraints[6]", "Params.sketch10_width")
pocket4 = doc.addObject("PartDesign::Pocket", "Pocket003")
body.addObject(pocket4)
pocket4.Profile = sketch10
pocket4.setExpression("Length", "Params.pocket4_length")
pocket4.Reversed = True

doc.recompute()
